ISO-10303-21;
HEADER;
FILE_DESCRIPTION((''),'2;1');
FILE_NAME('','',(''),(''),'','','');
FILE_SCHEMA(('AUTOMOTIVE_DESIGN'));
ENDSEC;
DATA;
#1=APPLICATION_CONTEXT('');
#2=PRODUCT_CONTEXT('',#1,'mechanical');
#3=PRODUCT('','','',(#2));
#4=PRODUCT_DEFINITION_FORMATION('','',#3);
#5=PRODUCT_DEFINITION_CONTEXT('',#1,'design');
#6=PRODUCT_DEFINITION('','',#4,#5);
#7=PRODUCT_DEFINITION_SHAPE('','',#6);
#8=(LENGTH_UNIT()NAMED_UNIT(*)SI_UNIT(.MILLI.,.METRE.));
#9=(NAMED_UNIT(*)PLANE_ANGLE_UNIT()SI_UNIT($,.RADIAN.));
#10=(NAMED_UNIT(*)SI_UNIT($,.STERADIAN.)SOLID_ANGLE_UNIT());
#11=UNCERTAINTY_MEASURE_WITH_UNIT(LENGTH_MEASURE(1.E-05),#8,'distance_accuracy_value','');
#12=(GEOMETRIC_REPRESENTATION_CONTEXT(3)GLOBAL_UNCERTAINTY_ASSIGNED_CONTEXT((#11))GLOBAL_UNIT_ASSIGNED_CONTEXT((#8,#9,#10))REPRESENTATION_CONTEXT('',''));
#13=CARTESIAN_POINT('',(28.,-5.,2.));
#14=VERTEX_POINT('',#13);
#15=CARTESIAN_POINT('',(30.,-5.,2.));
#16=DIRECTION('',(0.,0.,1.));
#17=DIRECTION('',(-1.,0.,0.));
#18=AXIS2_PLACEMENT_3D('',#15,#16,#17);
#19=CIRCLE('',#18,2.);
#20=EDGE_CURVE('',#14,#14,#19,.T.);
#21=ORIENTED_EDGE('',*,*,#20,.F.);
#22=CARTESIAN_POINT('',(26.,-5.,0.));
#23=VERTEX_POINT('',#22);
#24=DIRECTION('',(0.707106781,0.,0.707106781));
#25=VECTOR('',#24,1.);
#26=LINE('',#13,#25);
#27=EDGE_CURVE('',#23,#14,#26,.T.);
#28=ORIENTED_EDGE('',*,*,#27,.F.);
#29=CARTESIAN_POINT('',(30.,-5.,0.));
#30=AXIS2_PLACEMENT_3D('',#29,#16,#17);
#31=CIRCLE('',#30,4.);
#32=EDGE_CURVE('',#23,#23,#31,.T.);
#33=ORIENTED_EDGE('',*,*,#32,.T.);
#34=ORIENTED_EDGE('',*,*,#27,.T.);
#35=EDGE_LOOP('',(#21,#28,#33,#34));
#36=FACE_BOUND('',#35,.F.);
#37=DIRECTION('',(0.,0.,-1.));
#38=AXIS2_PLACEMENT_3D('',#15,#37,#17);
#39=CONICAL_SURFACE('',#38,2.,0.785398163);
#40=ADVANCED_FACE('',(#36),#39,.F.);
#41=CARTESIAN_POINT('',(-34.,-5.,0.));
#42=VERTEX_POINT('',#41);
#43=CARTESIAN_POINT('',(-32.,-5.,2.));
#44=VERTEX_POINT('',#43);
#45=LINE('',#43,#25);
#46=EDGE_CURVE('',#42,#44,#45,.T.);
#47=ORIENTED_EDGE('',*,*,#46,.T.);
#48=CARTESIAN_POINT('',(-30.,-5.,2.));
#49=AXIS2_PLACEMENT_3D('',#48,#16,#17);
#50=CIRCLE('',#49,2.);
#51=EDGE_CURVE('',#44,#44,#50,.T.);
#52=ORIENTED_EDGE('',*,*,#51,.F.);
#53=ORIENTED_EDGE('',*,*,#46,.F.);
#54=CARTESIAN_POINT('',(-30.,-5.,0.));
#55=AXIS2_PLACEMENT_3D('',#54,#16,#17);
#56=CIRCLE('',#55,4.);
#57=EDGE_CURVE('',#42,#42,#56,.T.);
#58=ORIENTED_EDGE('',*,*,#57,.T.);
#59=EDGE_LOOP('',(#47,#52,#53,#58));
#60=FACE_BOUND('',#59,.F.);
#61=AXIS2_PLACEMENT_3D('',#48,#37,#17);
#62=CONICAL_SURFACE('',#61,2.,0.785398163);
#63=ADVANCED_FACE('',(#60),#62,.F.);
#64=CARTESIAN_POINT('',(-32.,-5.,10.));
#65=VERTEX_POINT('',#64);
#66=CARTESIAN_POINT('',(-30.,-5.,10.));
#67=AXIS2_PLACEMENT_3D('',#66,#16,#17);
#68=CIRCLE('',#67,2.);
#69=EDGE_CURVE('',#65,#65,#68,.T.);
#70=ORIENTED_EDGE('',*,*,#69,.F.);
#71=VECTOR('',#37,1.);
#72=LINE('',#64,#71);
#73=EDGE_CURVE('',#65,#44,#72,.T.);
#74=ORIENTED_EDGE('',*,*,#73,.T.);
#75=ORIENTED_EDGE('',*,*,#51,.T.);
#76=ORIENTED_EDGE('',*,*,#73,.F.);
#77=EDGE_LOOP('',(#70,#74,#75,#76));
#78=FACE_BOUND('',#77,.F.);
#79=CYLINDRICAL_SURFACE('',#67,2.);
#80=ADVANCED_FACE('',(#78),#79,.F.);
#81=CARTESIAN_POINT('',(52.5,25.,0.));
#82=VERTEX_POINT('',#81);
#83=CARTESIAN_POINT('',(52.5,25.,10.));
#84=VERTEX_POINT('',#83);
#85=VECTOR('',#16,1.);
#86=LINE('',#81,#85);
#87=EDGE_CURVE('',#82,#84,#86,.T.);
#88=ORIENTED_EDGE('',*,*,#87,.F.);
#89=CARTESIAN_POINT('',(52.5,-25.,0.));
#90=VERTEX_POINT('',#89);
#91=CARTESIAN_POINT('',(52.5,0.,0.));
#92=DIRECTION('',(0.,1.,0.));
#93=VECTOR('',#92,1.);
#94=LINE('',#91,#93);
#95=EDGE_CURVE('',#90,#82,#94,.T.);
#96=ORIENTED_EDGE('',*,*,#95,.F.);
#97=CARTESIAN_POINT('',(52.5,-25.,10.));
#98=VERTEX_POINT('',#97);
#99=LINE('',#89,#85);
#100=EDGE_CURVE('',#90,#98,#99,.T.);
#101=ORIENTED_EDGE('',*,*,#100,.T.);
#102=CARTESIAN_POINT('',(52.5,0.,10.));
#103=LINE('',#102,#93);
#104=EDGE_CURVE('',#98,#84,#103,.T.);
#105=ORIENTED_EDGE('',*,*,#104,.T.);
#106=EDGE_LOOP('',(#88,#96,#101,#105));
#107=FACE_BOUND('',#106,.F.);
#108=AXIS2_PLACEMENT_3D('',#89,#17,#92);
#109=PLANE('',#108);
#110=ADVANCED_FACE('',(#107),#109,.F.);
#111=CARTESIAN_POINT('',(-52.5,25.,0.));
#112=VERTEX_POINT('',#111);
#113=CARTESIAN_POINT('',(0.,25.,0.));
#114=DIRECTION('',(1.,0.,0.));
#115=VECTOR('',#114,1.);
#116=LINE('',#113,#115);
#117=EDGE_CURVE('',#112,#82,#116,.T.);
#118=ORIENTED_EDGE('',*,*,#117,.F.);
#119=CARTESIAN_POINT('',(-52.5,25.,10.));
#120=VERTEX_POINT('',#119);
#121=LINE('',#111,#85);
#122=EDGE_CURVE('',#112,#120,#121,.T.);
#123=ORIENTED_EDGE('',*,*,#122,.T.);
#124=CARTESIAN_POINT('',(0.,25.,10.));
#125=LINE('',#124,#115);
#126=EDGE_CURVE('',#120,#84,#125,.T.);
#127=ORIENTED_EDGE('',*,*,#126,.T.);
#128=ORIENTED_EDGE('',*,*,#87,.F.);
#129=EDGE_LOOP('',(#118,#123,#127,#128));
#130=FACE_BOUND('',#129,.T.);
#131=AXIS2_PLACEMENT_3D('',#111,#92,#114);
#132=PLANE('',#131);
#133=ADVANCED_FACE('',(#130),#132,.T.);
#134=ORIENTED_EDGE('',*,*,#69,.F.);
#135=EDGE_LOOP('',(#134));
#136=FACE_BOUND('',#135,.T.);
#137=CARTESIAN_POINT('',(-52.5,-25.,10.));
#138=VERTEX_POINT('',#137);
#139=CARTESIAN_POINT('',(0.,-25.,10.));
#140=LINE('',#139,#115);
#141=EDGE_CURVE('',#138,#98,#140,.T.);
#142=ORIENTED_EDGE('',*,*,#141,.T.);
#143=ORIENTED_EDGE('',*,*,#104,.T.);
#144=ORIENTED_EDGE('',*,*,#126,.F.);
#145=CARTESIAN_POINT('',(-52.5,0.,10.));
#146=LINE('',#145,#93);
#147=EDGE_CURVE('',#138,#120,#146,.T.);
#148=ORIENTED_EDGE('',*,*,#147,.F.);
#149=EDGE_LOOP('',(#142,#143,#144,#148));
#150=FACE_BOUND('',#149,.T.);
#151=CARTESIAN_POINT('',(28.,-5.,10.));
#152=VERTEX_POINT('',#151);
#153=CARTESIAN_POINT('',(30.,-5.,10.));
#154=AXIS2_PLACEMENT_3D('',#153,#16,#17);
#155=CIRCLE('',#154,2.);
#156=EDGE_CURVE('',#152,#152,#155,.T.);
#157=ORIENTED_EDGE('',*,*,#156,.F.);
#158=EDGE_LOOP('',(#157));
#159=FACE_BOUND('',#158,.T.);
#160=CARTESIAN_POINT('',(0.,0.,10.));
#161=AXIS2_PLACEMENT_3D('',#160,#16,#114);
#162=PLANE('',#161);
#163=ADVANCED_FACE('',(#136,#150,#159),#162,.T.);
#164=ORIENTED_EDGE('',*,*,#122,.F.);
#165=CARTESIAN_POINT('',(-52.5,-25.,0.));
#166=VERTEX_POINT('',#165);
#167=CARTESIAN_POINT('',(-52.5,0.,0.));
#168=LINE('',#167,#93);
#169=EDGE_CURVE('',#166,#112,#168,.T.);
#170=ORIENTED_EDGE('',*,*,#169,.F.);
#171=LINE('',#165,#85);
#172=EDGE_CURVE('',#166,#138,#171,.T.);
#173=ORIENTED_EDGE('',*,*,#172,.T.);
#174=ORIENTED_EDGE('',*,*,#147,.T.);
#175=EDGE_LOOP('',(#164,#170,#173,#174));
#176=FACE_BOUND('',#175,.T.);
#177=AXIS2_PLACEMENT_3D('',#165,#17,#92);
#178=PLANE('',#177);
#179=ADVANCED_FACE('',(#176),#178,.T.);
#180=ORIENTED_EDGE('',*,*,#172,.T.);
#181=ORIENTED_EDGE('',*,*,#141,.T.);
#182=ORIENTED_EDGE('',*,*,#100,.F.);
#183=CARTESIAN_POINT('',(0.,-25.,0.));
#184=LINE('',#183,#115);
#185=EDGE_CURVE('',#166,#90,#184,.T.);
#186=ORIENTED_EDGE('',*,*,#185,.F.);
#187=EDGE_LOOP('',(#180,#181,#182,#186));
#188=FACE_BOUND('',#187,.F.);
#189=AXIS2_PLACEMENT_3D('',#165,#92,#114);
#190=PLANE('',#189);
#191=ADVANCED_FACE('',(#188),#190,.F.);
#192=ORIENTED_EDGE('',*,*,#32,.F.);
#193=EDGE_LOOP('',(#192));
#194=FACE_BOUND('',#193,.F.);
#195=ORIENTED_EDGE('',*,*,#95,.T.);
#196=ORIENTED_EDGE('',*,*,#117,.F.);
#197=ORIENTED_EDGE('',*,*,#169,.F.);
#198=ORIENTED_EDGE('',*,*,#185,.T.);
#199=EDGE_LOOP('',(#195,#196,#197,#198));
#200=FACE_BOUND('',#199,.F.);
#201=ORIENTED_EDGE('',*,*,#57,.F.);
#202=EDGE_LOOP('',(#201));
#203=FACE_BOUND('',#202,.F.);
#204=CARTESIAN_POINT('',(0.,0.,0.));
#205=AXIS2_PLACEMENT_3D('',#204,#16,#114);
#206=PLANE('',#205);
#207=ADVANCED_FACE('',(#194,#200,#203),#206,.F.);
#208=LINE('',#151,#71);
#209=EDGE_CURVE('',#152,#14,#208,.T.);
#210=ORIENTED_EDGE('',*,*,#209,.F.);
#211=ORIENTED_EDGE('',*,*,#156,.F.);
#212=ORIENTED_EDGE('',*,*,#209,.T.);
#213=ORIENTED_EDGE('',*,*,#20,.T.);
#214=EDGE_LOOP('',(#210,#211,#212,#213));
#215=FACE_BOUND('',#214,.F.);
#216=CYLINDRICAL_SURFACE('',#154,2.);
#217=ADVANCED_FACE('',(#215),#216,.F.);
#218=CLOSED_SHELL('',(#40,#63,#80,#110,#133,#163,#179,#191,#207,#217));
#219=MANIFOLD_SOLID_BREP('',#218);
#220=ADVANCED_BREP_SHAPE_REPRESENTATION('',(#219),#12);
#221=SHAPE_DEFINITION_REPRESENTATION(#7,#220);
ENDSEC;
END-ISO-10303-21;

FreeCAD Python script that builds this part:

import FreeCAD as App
import Part
import Sketcher
from FreeCAD import Vector
Q = App.Units.Quantity


def edges_at(feature, points):
    """Names of the edges that pass closest to the given points."""
    edges = feature.Shape.Edges
    near = lambda p: min(range(len(edges)), key=lambda i: edges[i].distToShape(Part.Vertex(*p))[0])
    return sorted({f"Edge{near(p) + 1}" for p in points})


def add_polygon(sketch, points):
    """Adds a closed chain of lines whose ends are joined by coincident constraints."""
    first, n = sketch.GeometryCount, len(points)
    for a, b in zip(points, points[1:] + points[:1]):
        sketch.addGeometry(Part.LineSegment(App.Vector(*a, 0), App.Vector(*b, 0)), False)
    for i in range(n):
        sketch.addConstraint(Sketcher.Constraint("Coincident", first + i, 2, first + (i + 1) % n, 1))

doc = App.newDocument("Part")
params = doc.addObject("Spreadsheet::Sheet", "Params")
for row, (alias, value) in enumerate([
    ("sketch1_width", "105 mm"),
    ("sketch1_height", "50 mm"),
    ("pad1_length", "10 mm"),
    ("sketch2_diameter", "4 mm"),
    ("chamfer_size", "2 mm"),
], start=1):
    params.set(f"A{row}", alias)
    params.set(f"B{row}", "=" + value)
    params.setAlias(f"B{row}", alias)

body = doc.addObject("PartDesign::Body", "Body")

# Sketch on XY plane
sketch1 = doc.addObject("Sketcher::SketchObject", "Sketch")
body.addObject(sketch1)
sketch1.AttachmentSupport = (doc.XY_Plane, [""])
sketch1.MapMode = "FlatFace"
add_polygon(sketch1, [(-52, 25), (-52, -25), (52, -25), (52, 25)])  # lines 0-3
sketch1.addConstraint([
    Sketcher.Constraint("Vertical", 0),
    Sketcher.Constraint("Horizontal", 1),
    Sketcher.Constraint("Vertical", 2),
    Sketcher.Constraint("Horizontal", 3),
    Sketcher.Constraint("Symmetric", 0, 2, 2, 2, -1, 1),
    Sketcher.Constraint("DistanceX", 1, 1, 1, 2, Q("105 mm")),
    Sketcher.Constraint("DistanceY", 0, 2, 0, 1, Q("50 mm")),
])
sketch1.setExpression("Constraints[9]", "Params.sketch1_width")
sketch1.setExpression("Constraints[10]", "Params.sketch1_height")
pad1 = doc.addObject("PartDesign::Pad", "Pad")
body.addObject(pad1)
pad1.Profile = sketch1
pad1.setExpression("Length", "Params.pad1_length")

# Sketch on XY plane
sketch2 = doc.addObject("Sketcher::SketchObject", "Sketch001")
body.addObject(sketch2)
sketch2.AttachmentSupport = (doc.XY_Plane, [""])
sketch2.MapMode = "FlatFace"
sketch2.AttachmentOffset = App.Placement(Vector(0, 0, 10), App.Rotation())
sketch2.addGeometry([
    Part.Circle(Vector(-30, -5, 0), Vector(0, 0, 1), 2),
    Part.Circle(Vector(30, -5, 0), Vector(0, 0, 1), 2),
], False)
sketch2.addConstraint([
    Sketcher.Constraint("Equal", 0, 1),
    Sketcher.Constraint("Symmetric", 0, 3, 1, 3, -2),
    Sketcher.Constraint("Diameter", 0, Q("4 mm")),
    Sketcher.Constraint("DistanceX", 0, 3, -1, 1, Q("30 mm")),
    Sketcher.Constraint("DistanceY", 0, 3, -1, 1, Q("5 mm")),
])
sketch2.setExpression("Constraints[2]", "Params.sketch2_diameter")
pocket1 = doc.addObject("PartDesign::Pocket", "Pocket")
body.addObject(pocket1)
pocket1.Profile = sketch2
pocket1.Type = "ThroughAll"
doc.recompute()

chamfer = doc.addObject("PartDesign::Chamfer", "Chamfer")
body.addObject(chamfer)
chamfer.Base = (pocket1, edges_at(pocket1, [(32, -5, 0), (-28, -5, 0)]))
chamfer.setExpression("Size", "Params.chamfer_size")

doc.recompute()
